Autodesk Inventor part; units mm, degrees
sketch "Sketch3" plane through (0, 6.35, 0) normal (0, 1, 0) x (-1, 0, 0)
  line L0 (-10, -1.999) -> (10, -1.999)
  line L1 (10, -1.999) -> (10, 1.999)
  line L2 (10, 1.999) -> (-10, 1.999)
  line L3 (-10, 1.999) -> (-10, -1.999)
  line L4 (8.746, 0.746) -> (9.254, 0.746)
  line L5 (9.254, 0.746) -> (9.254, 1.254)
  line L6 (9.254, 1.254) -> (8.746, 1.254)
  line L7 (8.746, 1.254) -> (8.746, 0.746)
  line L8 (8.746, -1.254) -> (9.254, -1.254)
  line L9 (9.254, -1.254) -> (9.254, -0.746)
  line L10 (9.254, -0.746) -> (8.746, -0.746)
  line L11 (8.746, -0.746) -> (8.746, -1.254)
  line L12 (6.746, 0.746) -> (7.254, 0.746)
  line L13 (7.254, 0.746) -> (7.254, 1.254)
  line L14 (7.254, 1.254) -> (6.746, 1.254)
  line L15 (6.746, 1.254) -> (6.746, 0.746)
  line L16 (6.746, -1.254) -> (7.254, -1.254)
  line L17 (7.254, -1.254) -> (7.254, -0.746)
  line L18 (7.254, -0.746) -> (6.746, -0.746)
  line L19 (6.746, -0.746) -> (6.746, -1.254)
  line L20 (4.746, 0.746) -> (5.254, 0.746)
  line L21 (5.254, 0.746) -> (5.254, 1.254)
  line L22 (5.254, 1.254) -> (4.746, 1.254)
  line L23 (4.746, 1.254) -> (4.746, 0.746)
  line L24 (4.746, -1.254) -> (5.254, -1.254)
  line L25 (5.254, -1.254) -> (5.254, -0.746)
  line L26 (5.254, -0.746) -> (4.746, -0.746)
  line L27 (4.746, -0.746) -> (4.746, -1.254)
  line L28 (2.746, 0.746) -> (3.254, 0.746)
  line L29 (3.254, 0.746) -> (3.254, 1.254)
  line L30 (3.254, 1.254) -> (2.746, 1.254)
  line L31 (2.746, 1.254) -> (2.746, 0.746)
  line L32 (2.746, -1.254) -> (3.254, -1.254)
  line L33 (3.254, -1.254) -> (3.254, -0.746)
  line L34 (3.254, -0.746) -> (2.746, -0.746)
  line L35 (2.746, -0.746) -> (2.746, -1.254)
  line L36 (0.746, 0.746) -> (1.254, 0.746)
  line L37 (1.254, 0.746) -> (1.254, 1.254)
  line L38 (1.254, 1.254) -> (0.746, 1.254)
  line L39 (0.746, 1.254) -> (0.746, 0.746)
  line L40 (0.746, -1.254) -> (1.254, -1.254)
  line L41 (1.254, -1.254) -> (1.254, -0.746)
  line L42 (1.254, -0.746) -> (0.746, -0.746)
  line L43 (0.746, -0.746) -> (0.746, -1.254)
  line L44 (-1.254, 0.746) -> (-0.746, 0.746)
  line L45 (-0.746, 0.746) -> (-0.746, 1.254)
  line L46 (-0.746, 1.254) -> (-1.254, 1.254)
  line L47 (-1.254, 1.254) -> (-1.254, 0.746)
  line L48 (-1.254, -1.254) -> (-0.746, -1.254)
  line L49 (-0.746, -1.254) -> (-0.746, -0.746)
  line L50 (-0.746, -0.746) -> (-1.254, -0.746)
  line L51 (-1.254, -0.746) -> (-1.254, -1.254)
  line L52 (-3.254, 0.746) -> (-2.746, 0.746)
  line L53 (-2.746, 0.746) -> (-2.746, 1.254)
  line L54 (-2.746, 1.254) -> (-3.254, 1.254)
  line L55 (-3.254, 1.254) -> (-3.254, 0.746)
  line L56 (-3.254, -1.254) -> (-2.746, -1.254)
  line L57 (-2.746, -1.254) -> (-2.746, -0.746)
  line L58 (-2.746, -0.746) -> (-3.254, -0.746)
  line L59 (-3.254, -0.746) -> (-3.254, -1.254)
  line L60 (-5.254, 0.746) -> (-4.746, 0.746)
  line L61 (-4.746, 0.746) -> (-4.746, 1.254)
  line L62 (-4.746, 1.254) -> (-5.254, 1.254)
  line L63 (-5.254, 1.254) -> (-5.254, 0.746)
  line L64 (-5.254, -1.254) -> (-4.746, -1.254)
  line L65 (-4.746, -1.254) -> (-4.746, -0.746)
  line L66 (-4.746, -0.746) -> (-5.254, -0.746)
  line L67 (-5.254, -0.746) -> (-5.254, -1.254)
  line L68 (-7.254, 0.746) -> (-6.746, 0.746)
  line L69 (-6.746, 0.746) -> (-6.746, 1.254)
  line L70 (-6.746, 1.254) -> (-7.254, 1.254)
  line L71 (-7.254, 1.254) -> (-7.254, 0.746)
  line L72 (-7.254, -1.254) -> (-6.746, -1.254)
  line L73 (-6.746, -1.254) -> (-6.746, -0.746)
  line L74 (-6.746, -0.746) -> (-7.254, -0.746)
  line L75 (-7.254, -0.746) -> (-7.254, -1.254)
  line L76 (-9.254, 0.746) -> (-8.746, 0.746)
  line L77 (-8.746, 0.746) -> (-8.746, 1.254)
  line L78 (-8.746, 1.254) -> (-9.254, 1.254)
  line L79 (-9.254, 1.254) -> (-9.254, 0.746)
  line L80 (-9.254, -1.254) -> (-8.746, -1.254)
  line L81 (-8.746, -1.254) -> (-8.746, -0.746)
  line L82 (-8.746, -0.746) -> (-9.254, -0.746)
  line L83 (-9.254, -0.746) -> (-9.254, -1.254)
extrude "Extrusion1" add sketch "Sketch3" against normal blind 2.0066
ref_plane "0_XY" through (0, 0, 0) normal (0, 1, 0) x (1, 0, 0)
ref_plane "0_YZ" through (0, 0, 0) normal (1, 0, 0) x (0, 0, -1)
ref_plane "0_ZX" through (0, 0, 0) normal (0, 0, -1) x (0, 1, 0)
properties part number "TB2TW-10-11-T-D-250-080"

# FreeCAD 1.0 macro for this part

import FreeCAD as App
import Part
import Sketcher

V = App.Vector
Q = App.Units.Quantity


def add_polygon(sketch, points):
    """Adds a closed chain of lines whose ends are joined by coincident constraints."""
    first, n = sketch.GeometryCount, len(points)
    for a, b in zip(points, points[1:] + points[:1]):
        sketch.addGeometry(Part.LineSegment(App.Vector(*a, 0), App.Vector(*b, 0)), False)
    for i in range(n):
        sketch.addConstraint(Sketcher.Constraint("Coincident", first + i, 2, first + (i + 1) % n, 1))

doc = App.newDocument("Part")
body = doc.addObject("PartDesign::Body", "Body")

# Sketch on XZ plane
sketch1 = doc.addObject("Sketcher::SketchObject", "Sketch")
body.addObject(sketch1)
sketch1.AttachmentSupport = (doc.XZ_Plane, [""])
sketch1.MapMode = "FlatFace"
sketch1.AttachmentOffset = App.Placement(V(0, 0, -0.25 * 25.4), App.Rotation())
add_polygon(sketch1, [(10, 1.999), (10, -1.999), (-10, -1.999), (-10, 1.999)])  # lines 0-3
add_polygon(sketch1, [(8.746, -1.254), (9.254, -1.254), (9.254, -0.746), (8.746, -0.746)])  # lines 4-7
add_polygon(sketch1, [(6.746, -1.254), (7.254, -1.254), (7.254, -0.746), (6.746, -0.746)])  # lines 8-11
add_polygon(sketch1, [(4.746, -1.254), (5.254, -1.254), (5.254, -0.746), (4.746, -0.746)])  # lines 12-15
add_polygon(sketch1, [(2.746, -1.254), (3.254, -1.254), (3.254, -0.746), (2.746, -0.746)])  # lines 16-19
add_polygon(sketch1, [(0.746, -1.254), (1.254, -1.254), (1.254, -0.746), (0.746, -0.746)])  # lines 20-23
add_polygon(sketch1, [(-1.254, -1.254), (-0.746, -1.254), (-0.746, -0.746), (-1.254, -0.746)])  # lines 24-27
add_polygon(sketch1, [(-3.254, -1.254), (-2.746, -1.254), (-2.746, -0.746), (-3.254, -0.746)])  # lines 28-31
add_polygon(sketch1, [(-5.254, -1.254), (-4.746, -1.254), (-4.746, -0.746), (-5.254, -0.746)])  # lines 32-35
add_polygon(sketch1, [(-7.254, -1.254), (-6.746, -1.254), (-6.746, -0.746), (-7.254, -0.746)])  # lines 36-39
add_polygon(sketch1, [(-9.254, -1.254), (-8.746, -1.254), (-8.746, -0.746), (-9.254, -0.746)])  # lines 40-43
add_polygon(sketch1, [(8.746, 0.746), (9.254, 0.746), (9.254, 1.254), (8.746, 1.254)])  # lines 44-47
add_polygon(sketch1, [(6.746, 0.746), (7.254, 0.746), (7.254, 1.254), (6.746, 1.254)])  # lines 48-51
add_polygon(sketch1, [(4.746, 0.746), (5.254, 0.746), (5.254, 1.254), (4.746, 1.254)])  # lines 52-55
add_polygon(sketch1, [(2.746, 0.746), (3.254, 0.746), (3.254, 1.254), (2.746, 1.254)])  # lines 56-59
add_polygon(sketch1, [(0.746, 0.746), (1.254, 0.746), (1.254, 1.254), (0.746, 1.254)])  # lines 60-63
add_polygon(sketch1, [(-1.254, 0.746), (-0.746, 0.746), (-0.746, 1.254), (-1.254, 1.254)])  # lines 64-67
add_polygon(sketch1, [(-3.254, 0.746), (-2.746, 0.746), (-2.746, 1.254), (-3.254, 1.254)])  # lines 68-71
add_polygon(sketch1, [(-5.254, 0.746), (-4.746, 0.746), (-4.746, 1.254), (-5.254, 1.254)])  # lines 72-75
add_polygon(sketch1, [(-7.254, 0.746), (-6.746, 0.746), (-6.746, 1.254), (-7.254, 1.254)])  # lines 76-79
add_polygon(sketch1, [(-9.254, 0.746), (-8.746, 0.746), (-8.746, 1.254), (-9.254, 1.254)])  # lines 80-83
sketch1.addConstraint([
    Sketcher.Constraint("Vertical", 0),
    Sketcher.Constraint("Horizontal", 1),
    Sketcher.Constraint("Vertical", 2),
    Sketcher.Constraint("Horizontal", 3),
    Sketcher.Constraint("Horizontal", 4),
    Sketcher.Constraint("Vertical", 5),
    Sketcher.Constraint("Horizontal", 6),
    Sketcher.Constraint("Vertical", 7),
    Sketcher.Constraint("Horizontal", 8),
    Sketcher.Constraint("Vertical", 9),
    Sketcher.Constraint("Horizontal", 10),
    Sketcher.Constraint("Vertical", 11),
    Sketcher.Constraint("Horizontal", 12),
    Sketcher.Constraint("Vertical", 13),
    Sketcher.Constraint("Horizontal", 14),
    Sketcher.Constraint("Vertical", 15),
    Sketcher.Constraint("Horizontal", 16),
    Sketcher.Constraint("Vertical", 17),
    Sketcher.Constraint("Horizontal", 18),
    Sketcher.Constraint("Vertical", 19),
    Sketcher.Constraint("Horizontal", 20),
    Sketcher.Constraint("Vertical", 21),
    Sketcher.Constraint("Horizontal", 22),
    Sketcher.Constraint("Vertical", 23),
    Sketcher.Constraint("Horizontal", 24),
    Sketcher.Constraint("Vertical", 25),
    Sketcher.Constraint("Horizontal", 26),
    Sketcher.Constraint("Vertical", 27),
    Sketcher.Constraint("Horizontal", 28),
    Sketcher.Constraint("Vertical", 29),
    Sketcher.Constraint("Horizontal", 30),
    Sketcher.Constraint("Vertical", 31),
    Sketcher.Constraint("Horizontal", 32),
    Sketcher.Constraint("Vertical", 33),
    Sketcher.Constraint("Horizontal", 34),
    Sketcher.Constraint("Vertical", 35),
    Sketcher.Constraint("Horizontal", 36),
    Sketcher.Constraint("Vertical", 37),
    Sketcher.Constraint("Horizontal", 38),
    Sketcher.Constraint("Vertical", 39),
    Sketcher.Constraint("Horizontal", 40),
    Sketcher.Constraint("Vertical", 41),
    Sketcher.Constraint("Horizontal", 42),
    Sketcher.Constraint("Vertical", 43),
    Sketcher.Constraint("Horizontal", 44),
    Sketcher.Constraint("Vertical", 45),
    Sketcher.Constraint("Horizontal", 46),
    Sketcher.Constraint("Vertical", 47),
    Sketcher.Constraint("Horizontal", 48),
    Sketcher.Constraint("Vertical", 49),
    Sketcher.Constraint("Horizontal", 50),
    Sketcher.Constraint("Vertical", 51),
    Sketcher.Constraint("Horizontal", 52),
    Sketcher.Constraint("Vertical", 53),
    Sketcher.Constraint("Horizontal", 54),
    Sketcher.Constraint("Vertical", 55),
    Sketcher.Constraint("Horizontal", 56),
    Sketcher.Constraint("Vertical", 57),
    Sketcher.Constraint("Horizontal", 58),
    Sketcher.Constraint("Vertical", 59),
    Sketcher.Constraint("Horizontal", 60),
    Sketcher.Constraint("Vertical", 61),
    Sketcher.Constraint("Horizontal", 62),
    Sketcher.Constraint("Vertical", 63),
    Sketcher.Constraint("Horizontal", 64),
    Sketcher.Constraint("Vertical", 65),
    Sketcher.Constraint("Horizontal", 66),
    Sketcher.Constraint("Vertical", 67),
    Sketcher.Constraint("Horizontal", 68),
    Sketcher.Constraint("Vertical", 69),
    Sketcher.Constraint("Horizontal", 70),
    Sketcher.Constraint("Vertical", 71),
    Sketcher.Constraint("Horizontal", 72),
    Sketcher.Constraint("Vertical", 73),
    Sketcher.Constraint("Horizontal", 74),
    Sketcher.Constraint("Vertical", 75),
    Sketcher.Constraint("Horizontal", 76),
    Sketcher.Constraint("Vertical", 77),
    Sketcher.Constraint("Horizontal", 78),
    Sketcher.Constraint("Vertical", 79),
    Sketcher.Constraint("Horizontal", 80),
    Sketcher.Constraint("Vertical", 81),
    Sketcher.Constraint("Horizontal", 82),
    Sketcher.Constraint("Vertical", 83),
    Sketcher.Constraint("Symmetric", 0, 2, 2, 2, -1, 1),
    Sketcher.Constraint("Symmetric", 42, 2, 44, 2, -1, 1),
    Sketcher.Constraint("Symmetric", 40, 2, 46, 2, -1, 1),
    Sketcher.Constraint("Symmetric", 38, 2, 48, 2, -1, 1),
    Sketcher.Constraint("Symmetric", 36, 2, 50, 2, -1, 1),
    Sketcher.Constraint("Symmetric", 34, 2, 52, 2, -1, 1),
    Sketcher.Constraint("Symmetric", 32, 2, 54, 2, -1, 1),
    Sketcher.Constraint("Symmetric", 30, 2, 56, 2, -1, 1),
    Sketcher.Constraint("Symmetric", 28, 2, 58, 2, -1, 1),
    Sketcher.Constraint("Symmetric", 26, 2, 60, 2, -1, 1),
    Sketcher.Constraint("Symmetric", 24, 2, 62, 2, -1, 1),
    Sketcher.Constraint("Symmetric", 22, 2, 64, 2, -1, 1),
    Sketcher.Constraint("Symmetric", 20, 2, 66, 2, -1, 1),
    Sketcher.Constraint("Symmetric", 18, 2, 68, 2, -1, 1),
    Sketcher.Constraint("Symmetric", 16, 2, 70, 2, -1, 1),
    Sketcher.Constraint("Symmetric", 14, 2, 72, 2, -1, 1),
    Sketcher.Constraint("Symmetric", 12, 2, 74, 2, -1, 1),
    Sketcher.Constraint("Symmetric", 10, 2, 76, 2, -1, 1),
    Sketcher.Constraint("Symmetric", 8, 2, 78, 2, -1, 1),
    Sketcher.Constraint("Symmetric", 6, 2, 80, 2, -1, 1),
    Sketcher.Constraint("Symmetric", 4, 2, 82, 2, -1, 1),
    Sketcher.Constraint("Symmetric", 23, 2, 24, 2, -2),
    Sketcher.Constraint("Symmetric", 21, 2, 26, 2, -2),
    Sketcher.Constraint("Symmetric", 19, 2, 28, 2, -2),
    Sketcher.Constraint("Symmetric", 17, 2, 30, 2, -2),
    Sketcher.Constraint("Symmetric", 15, 2, 32, 2, -2),
    Sketcher.Constraint("Symmetric", 13, 2, 34, 2, -2),
    Sketcher.Constraint("Symmetric", 11, 2, 36, 2, -2),
    Sketcher.Constraint("Symmetric", 9, 2, 38, 2, -2),
    Sketcher.Constraint("Symmetric", 7, 2, 40, 2, -2),
    Sketcher.Constraint("Symmetric", 5, 2, 42, 2, -2),
    Sketcher.Constraint("Horizontal", 7, 2, 8, 2),
    Sketcher.Constraint("Horizontal", 6, 2, 9, 2),
    Sketcher.Constraint("Horizontal", 11, 2, 12, 2),
    Sketcher.Constraint("Horizontal", 10, 2, 13, 2),
    Sketcher.Constraint("Horizontal", 15, 2, 16, 2),
    Sketcher.Constraint("Horizontal", 14, 2, 17, 2),
    Sketcher.Constraint("Horizontal", 19, 2, 20, 2),
    Sketcher.Constraint("Horizontal", 18, 2, 21, 2),
    Sketcher.Constraint("Equal", 6, 8),
    Sketcher.Constraint("Equal", 10, 12),
    Sketcher.Constraint("Equal", 14, 16),
    Sketcher.Constraint("Equal", 18, 20),
    Sketcher.Constraint("Equal", 82, 5),
    Sketcher.Constraint("DistanceX", 4, 1, 4, 2, Q("0.02 in")),
    Sketcher.Constraint("DistanceX", 1, 2, 1, 1, Q("0.7874 in")),
    Sketcher.Constraint("DistanceY", 0, 2, 0, 1, Q("0.1574 in")),
    Sketcher.Constraint("DistanceX", -1, 1, 8, 2, Q("0.2856 in")),
    Sketcher.Constraint("DistanceX", -1, 1, 16, 2, Q("0.1281 in")),
    Sketcher.Constraint("DistanceX", -1, 1, 4, 2, 9.254),
    Sketcher.Constraint("DistanceY", 4, 2, -1, 1, 1.254),
    Sketcher.Constraint("DistanceX", -1, 1, 12, 2, 5.254),
    Sketcher.Constraint("DistanceX", -1, 1, 20, 2, 1.254),
])
pad1 = doc.addObject("PartDesign::Pad", "Pad")
body.addObject(pad1)
pad1.Profile = sketch1
pad1.Length = Q("0.079 in")

doc.recompute()
